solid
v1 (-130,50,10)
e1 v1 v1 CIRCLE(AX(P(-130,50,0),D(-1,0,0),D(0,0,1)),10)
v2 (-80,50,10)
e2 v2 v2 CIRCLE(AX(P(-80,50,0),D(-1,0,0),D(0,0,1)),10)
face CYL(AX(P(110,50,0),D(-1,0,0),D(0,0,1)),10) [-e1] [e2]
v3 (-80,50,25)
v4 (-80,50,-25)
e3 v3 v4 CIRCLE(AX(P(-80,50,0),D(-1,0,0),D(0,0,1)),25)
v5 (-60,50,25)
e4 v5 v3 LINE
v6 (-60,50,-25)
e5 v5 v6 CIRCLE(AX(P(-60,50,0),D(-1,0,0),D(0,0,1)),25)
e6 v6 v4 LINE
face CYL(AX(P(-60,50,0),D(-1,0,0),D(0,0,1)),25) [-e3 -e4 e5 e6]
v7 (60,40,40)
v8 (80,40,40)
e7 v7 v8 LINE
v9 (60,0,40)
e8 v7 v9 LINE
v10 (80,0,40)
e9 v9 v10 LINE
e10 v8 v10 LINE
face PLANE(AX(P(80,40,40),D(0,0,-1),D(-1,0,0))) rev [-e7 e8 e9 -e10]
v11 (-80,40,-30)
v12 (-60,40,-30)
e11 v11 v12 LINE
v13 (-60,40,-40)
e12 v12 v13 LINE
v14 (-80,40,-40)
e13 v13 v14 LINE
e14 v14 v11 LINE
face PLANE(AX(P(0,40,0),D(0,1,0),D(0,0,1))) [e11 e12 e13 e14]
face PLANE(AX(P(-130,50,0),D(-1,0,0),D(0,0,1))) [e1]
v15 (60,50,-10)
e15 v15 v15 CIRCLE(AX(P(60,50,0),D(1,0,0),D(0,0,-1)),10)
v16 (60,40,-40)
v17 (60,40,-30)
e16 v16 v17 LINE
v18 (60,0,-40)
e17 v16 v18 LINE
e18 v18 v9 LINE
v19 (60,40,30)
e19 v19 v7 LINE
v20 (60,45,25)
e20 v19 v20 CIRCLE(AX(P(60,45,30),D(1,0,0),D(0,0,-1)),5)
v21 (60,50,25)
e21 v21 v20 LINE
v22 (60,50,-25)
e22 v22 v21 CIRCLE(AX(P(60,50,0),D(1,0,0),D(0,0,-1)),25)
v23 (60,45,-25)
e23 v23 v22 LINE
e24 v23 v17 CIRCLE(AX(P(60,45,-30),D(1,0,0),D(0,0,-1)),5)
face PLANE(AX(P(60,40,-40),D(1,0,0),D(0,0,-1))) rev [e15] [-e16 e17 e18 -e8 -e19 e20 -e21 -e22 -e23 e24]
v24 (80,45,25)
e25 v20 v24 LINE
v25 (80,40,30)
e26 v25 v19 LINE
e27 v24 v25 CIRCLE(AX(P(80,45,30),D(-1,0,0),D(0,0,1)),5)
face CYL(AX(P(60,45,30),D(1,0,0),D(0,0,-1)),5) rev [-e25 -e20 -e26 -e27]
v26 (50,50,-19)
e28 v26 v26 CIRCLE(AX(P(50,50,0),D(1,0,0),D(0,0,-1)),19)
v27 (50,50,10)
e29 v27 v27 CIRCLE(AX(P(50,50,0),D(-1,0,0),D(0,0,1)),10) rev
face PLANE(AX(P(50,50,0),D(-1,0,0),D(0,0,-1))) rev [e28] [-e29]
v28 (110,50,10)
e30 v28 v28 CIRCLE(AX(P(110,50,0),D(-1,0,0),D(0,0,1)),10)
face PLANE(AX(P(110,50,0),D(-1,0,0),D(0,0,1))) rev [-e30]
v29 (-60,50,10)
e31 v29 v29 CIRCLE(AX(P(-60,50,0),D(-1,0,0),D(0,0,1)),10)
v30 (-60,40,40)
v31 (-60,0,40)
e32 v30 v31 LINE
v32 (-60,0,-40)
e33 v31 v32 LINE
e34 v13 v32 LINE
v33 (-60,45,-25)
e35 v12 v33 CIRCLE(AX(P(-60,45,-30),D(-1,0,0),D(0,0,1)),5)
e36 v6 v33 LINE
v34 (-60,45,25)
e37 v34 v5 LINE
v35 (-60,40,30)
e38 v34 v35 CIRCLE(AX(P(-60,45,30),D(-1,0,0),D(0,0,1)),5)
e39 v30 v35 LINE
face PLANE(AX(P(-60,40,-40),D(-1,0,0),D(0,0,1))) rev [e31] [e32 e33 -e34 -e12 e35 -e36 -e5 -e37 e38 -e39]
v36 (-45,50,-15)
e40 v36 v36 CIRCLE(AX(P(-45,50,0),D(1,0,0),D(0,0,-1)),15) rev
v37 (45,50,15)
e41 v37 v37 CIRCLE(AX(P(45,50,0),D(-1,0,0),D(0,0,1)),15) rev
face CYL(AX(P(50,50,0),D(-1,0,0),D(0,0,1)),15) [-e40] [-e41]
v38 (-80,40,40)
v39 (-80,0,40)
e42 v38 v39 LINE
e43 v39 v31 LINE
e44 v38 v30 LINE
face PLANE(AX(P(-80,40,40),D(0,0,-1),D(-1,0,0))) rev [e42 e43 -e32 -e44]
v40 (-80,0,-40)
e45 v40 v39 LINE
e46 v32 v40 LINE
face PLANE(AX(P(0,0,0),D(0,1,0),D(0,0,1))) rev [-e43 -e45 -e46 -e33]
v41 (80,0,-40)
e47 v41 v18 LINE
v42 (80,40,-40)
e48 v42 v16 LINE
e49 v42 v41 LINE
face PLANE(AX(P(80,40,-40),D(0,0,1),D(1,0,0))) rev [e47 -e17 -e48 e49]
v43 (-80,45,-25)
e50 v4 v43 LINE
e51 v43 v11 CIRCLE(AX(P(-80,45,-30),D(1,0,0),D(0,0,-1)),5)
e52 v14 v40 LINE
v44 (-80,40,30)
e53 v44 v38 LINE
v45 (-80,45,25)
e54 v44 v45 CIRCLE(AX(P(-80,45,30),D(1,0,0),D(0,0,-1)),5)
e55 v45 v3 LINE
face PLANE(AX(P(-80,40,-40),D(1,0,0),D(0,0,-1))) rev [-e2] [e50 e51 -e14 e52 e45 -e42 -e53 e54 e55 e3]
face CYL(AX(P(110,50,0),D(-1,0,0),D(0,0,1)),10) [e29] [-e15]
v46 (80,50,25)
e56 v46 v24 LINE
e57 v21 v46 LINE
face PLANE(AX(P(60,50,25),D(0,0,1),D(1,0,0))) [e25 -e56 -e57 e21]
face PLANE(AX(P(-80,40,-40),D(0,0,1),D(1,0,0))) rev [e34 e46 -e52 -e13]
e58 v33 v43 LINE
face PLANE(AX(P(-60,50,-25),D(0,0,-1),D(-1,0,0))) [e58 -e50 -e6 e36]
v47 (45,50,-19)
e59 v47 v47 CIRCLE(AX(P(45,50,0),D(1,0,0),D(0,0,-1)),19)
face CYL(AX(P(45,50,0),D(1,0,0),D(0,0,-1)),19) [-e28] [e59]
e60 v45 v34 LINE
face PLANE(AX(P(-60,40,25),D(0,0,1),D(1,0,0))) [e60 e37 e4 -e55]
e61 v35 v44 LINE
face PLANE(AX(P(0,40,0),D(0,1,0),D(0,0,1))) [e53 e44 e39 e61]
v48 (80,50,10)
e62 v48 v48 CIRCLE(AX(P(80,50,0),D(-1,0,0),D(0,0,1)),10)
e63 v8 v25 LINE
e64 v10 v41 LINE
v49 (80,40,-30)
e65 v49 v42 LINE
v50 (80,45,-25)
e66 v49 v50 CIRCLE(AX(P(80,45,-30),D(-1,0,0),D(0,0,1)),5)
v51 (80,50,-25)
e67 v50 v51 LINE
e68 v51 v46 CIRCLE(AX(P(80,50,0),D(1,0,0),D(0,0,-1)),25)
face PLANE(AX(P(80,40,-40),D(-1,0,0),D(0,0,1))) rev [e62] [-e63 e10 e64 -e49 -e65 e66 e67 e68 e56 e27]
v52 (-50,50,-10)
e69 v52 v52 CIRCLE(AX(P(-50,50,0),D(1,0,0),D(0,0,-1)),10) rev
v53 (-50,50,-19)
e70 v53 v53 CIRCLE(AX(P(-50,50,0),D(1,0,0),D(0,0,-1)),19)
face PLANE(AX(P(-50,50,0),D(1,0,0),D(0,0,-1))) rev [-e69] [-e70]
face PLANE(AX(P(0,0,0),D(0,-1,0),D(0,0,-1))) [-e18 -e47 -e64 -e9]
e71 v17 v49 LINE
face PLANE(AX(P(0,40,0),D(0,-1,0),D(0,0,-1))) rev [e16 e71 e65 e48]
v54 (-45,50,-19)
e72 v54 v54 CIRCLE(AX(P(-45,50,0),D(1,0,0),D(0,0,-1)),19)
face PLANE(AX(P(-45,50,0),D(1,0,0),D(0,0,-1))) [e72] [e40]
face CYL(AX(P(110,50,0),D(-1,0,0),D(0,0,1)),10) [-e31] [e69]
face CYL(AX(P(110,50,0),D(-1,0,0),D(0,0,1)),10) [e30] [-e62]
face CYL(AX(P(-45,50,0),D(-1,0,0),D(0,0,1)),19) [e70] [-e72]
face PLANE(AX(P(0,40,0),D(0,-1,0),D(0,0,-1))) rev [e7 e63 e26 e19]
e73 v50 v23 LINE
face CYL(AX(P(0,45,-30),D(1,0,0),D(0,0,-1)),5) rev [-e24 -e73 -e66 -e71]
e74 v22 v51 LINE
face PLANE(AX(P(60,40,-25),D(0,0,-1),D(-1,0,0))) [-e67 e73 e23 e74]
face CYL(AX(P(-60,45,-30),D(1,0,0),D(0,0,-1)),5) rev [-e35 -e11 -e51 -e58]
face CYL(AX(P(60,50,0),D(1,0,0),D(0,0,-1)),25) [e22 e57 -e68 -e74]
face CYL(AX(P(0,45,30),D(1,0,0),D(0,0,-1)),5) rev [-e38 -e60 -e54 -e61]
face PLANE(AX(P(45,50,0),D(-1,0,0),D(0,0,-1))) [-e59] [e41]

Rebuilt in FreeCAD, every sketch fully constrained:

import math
import FreeCAD as App
import Part
import Sketcher

V = App.Vector
Q = App.Units.Quantity


def edges_at(feature, points):
    """Names of the edges that pass closest to the given points."""
    edges = feature.Shape.Edges
    near = lambda p: min(range(len(edges)), key=lambda i: edges[i].distToShape(Part.Vertex(*p))[0])
    return sorted({f"Edge{near(p) + 1}" for p in points})

doc = App.newDocument("Part")
body = doc.addObject("PartDesign::Body", "Body")

# Sketch on XZ plane
sketch1 = body.newObject("Sketcher::SketchObject", "Sketch")
sketch1.AttachmentSupport = (doc.getObject("XZ_Plane"), [""])
sketch1.MapMode = "FlatFace"
sketch1.addGeometry([
    Part.LineSegment(V(60, -40, 0), V(60, 40, 0)),
    Part.LineSegment(V(60, 40, 0), V(80, 40, 0)),
    Part.LineSegment(V(80, 40, 0), V(80, -40, 0)),
    Part.LineSegment(V(80, -40, 0), V(60, -40, 0)),
], False)
sketch1.addConstraint([
    Sketcher.Constraint("Coincident", 0, 2, 1, 1),
    Sketcher.Constraint("Coincident", 1, 2, 2, 1),
    Sketcher.Constraint("Coincident", 2, 2, 3, 1),
    Sketcher.Constraint("Coincident", 3, 2, 0, 1),
    Sketcher.Constraint("Vertical", 0),
    Sketcher.Constraint("Horizontal", 1),
    Sketcher.Constraint("Vertical", 2),
    Sketcher.Constraint("Horizontal", 3),
    Sketcher.Constraint("DistanceX", 1, 1, 1, 2, Q("20 mm")),
    Sketcher.Constraint("DistanceY", 0, 1, 0, 2, Q("80 mm")),
    Sketcher.Constraint("DistanceX", -1, 1, 0, 2, Q("60 mm")),
    Sketcher.Constraint("DistanceY", -1, 1, 0, 2, Q("40 mm")),
])
pad1 = body.newObject("PartDesign::Pad", "Pad")
pad1.Profile = sketch1
pad1.Length = 40
pad1.Reversed = True

# Sketch on YZ plane
sketch2 = body.newObject("Sketcher::SketchObject", "Sketch001")
sketch2.AttachmentSupport = (doc.getObject("YZ_Plane"), [""])
sketch2.MapMode = "FlatFace"
sketch2.AttachmentOffset = App.Placement(V(0, 0, 60), App.Rotation())
sketch2.addGeometry([
    Part.LineSegment(V(50, 25, 0), V(40, 25, 0)),
    Part.LineSegment(V(40, 25, 0), V(40, -25, 0)),
    Part.LineSegment(V(40, -25, 0), V(50, -25, 0)),
    Part.ArcOfCircle(Part.Circle(V(50, 0, 0), V(0, 0, 1), 25), math.radians(-90), math.radians(90)),
], False)
sketch2.addConstraint([
    Sketcher.Constraint("Coincident", 0, 2, 1, 1),
    Sketcher.Constraint("Coincident", 1, 2, 2, 1),
    Sketcher.Constraint("Tangent", 2, 2, 3, 1),
    Sketcher.Constraint("Tangent", 3, 2, 0, 1),
    Sketcher.Constraint("Horizontal", 0),
    Sketcher.Constraint("Vertical", 1),
    Sketcher.Constraint("Horizontal", 2),
    Sketcher.Constraint("PointOnObject", 3, 3, -1),
    Sketcher.Constraint("Radius", 3, Q("25 mm")),
    Sketcher.Constraint("DistanceX", 0, 2, 0, 1, Q("10 mm")),
    Sketcher.Constraint("DistanceX", -1, 1, 3, 3, Q("50 mm")),
])
pad2 = body.newObject("PartDesign::Pad", "Pad001")
pad2.Profile = sketch2
pad2.Length = 20
body2 = doc.addObject("PartDesign::Body", "Body001")

# Sketch on XZ plane
sketch3 = body2.newObject("Sketcher::SketchObject", "Sketch002")
sketch3.AttachmentSupport = (doc.getObject("XZ_Plane001"), [""])
sketch3.MapMode = "FlatFace"
sketch3.addGeometry([
    Part.LineSegment(V(-80, -40, 0), V(-80, 40, 0)),
    Part.LineSegment(V(-80, 40, 0), V(-60, 40, 0)),
    Part.LineSegment(V(-60, 40, 0), V(-60, -40, 0)),
    Part.LineSegment(V(-60, -40, 0), V(-80, -40, 0)),
], False)
sketch3.addConstraint([
    Sketcher.Constraint("Coincident", 0, 2, 1, 1),
    Sketcher.Constraint("Coincident", 1, 2, 2, 1),
    Sketcher.Constraint("Coincident", 2, 2, 3, 1),
    Sketcher.Constraint("Coincident", 3, 2, 0, 1),
    Sketcher.Constraint("Vertical", 0),
    Sketcher.Constraint("Horizontal", 1),
    Sketcher.Constraint("Vertical", 2),
    Sketcher.Constraint("Horizontal", 3),
    Sketcher.Constraint("DistanceX", 1, 1, 1, 2, Q("20 mm")),
    Sketcher.Constraint("DistanceY", 0, 1, 0, 2, Q("80 mm")),
    Sketcher.Constraint("DistanceX", 0, 2, -1, 1, Q("80 mm")),
    Sketcher.Constraint("DistanceY", -1, 1, 0, 2, Q("40 mm")),
])
pad3 = body2.newObject("PartDesign::Pad", "Pad002")
pad3.Profile = sketch3
pad3.Length = 40
pad3.Reversed = True

# Sketch on YZ plane
sketch4 = body2.newObject("Sketcher::SketchObject", "Sketch003")
sketch4.AttachmentSupport = (doc.getObject("YZ_Plane001"), [""])
sketch4.MapMode = "FlatFace"
sketch4.AttachmentOffset = App.Placement(V(0, 0, -60), App.Rotation())
sketch4.addGeometry([
    Part.LineSegment(V(50, -25, 0), V(40, -25, 0)),
    Part.LineSegment(V(40, -25, 0), V(40, 25, 0)),
    Part.LineSegment(V(40, 25, 0), V(50, 25, 0)),
    Part.ArcOfCircle(Part.Circle(V(50, 0, 0), V(0, 0, 1), 25), math.radians(-90), math.radians(90)),
], False)
sketch4.addConstraint([
    Sketcher.Constraint("Coincident", 0, 2, 1, 1),
    Sketcher.Constraint("Coincident", 1, 2, 2, 1),
    Sketcher.Constraint("Tangent", 2, 2, 3, 2),
    Sketcher.Constraint("Tangent", 3, 1, 0, 1),
    Sketcher.Constraint("Horizontal", 0),
    Sketcher.Constraint("Vertical", 1),
    Sketcher.Constraint("Horizontal", 2),
    Sketcher.Constraint("PointOnObject", 3, 3, -1),
    Sketcher.Constraint("Radius", 3, Q("25 mm")),
    Sketcher.Constraint("DistanceX", 0, 2, 0, 1, Q("10 mm")),
    Sketcher.Constraint("DistanceX", -1, 1, 3, 3, Q("50 mm")),
])
pad4 = body2.newObject("PartDesign::Pad", "Pad003")
pad4.Profile = sketch4
pad4.Length = 20
pad4.Reversed = True
body3 = doc.addObject("PartDesign::Body", "Body002")

# Sketch on YZ plane
sketch5 = body3.newObject("Sketcher::SketchObject", "Sketch004")
sketch5.AttachmentSupport = (doc.getObject("YZ_Plane002"), [""])
sketch5.MapMode = "FlatFace"
sketch5.AttachmentOffset = App.Placement(V(0, 0, -80), App.Rotation())
sketch5.addGeometry(Part.Circle(V(50, 0, 0), V(0, 0, 1), 10), False)
sketch5.addConstraint([
    Sketcher.Constraint("PointOnObject", 0, 3, -1),
    Sketcher.Constraint("Diameter", 0, Q("20 mm")),
    Sketcher.Constraint("DistanceX", -1, 1, 0, 3, Q("50 mm")),
])
pad5 = body3.newObject("PartDesign::Pad", "Pad004")
pad5.Profile = sketch5
pad5.Length = 170
doc.recompute()

body4 = doc.addObject("PartDesign::Body", "Body003")
body4.BaseFeature = body3
boolean = body.newObject("PartDesign::Boolean", "Boolean")
boolean.Type = "Cut"
boolean.addObjects([body4])
doc.recompute()

fillet = body.newObject("PartDesign::Fillet", "Fillet")
fillet.Base = (boolean, edges_at(boolean, [(70, 40, -25), (70, 40, 25)]))
fillet.Radius = 5
doc.recompute()

boolean2 = body2.newObject("PartDesign::Boolean", "Boolean001")
boolean2.Type = "Cut"
boolean2.addObjects([body3])
doc.recompute()

fillet2 = body2.newObject("PartDesign::Fillet", "Fillet001")
fillet2.Base = (boolean2, edges_at(boolean2, [(-70, 40, 25), (-70, 40, -25)]))
fillet2.Radius = 5
body.AllowCompound = True
doc.recompute()

boolean3 = body.newObject("PartDesign::Boolean", "Boolean002")
boolean3.Type = "Fuse"
boolean3.addObjects([body2])

# Sketch on YZ plane
sketch6 = body.newObject("Sketcher::SketchObject", "Sketch005")
sketch6.AttachmentSupport = (doc.getObject("YZ_Plane"), [""])
sketch6.MapMode = "FlatFace"
sketch6.AttachmentOffset = App.Placement(V(0, 0, -80), App.Rotation())
sketch6.addGeometry(Part.Circle(V(50, 0, 0), V(0, 0, 1), 10), False)
sketch6.addConstraint([
    Sketcher.Constraint("PointOnObject", 0, 3, -1),
    Sketcher.Constraint("Diameter", 0, Q("20 mm")),
    Sketcher.Constraint("DistanceX", -1, 1, 0, 3, Q("50 mm")),
])
pad6 = body.newObject("PartDesign::Pad", "Pad005")
pad6.Profile = sketch6
pad6.Type = "TwoLengths"
pad6.Length = 50
pad6.Length2 = 190
pad6.Reversed = True

# Sketch on YZ plane
sketch7 = body.newObject("Sketcher::SketchObject", "Sketch006")
sketch7.AttachmentSupport = (doc.getObject("YZ_Plane"), [""])
sketch7.MapMode = "FlatFace"
sketch7.AttachmentOffset = App.Placement(V(0, 0, -50), App.Rotation())
sketch7.addGeometry(Part.Circle(V(50, 0, 0), V(0, 0, 1), 19), False)
sketch7.addConstraint([
    Sketcher.Constraint("PointOnObject", 0, 3, -1),
    Sketcher.Constraint("Diameter", 0, Q("38 mm")),
    Sketcher.Constraint("DistanceX", -1, 1, 0, 3, Q("50 mm")),
])
pad7 = body.newObject("PartDesign::Pad", "Pad006")
pad7.Profile = sketch7
pad7.Length = 5
doc.recompute()

mirrored = body.newObject("PartDesign::Mirrored", "Mirrored")
mirrored.Originals = [pad7]
mirrored.MirrorPlane = (doc.getObject("YZ_Plane"), [""])
body.Tip = mirrored

# Sketch on YZ plane
sketch8 = body.newObject("Sketcher::SketchObject", "Sketch007")
sketch8.AttachmentSupport = (doc.getObject("YZ_Plane"), [""])
sketch8.MapMode = "FlatFace"
sketch8.AttachmentOffset = App.Placement(V(0, 0, -50), App.Rotation())
sketch8.addGeometry(Part.Circle(V(50, 0, 0), V(0, 0, 1), 15), False)
sketch8.addConstraint([
    Sketcher.Constraint("PointOnObject", 0, 3, -1),
    Sketcher.Constraint("Diameter", 0, Q("30 mm")),
    Sketcher.Constraint("DistanceX", -1, 1, 0, 3, Q("50 mm")),
])
pad8 = body.newObject("PartDesign::Pad", "Pad007")
pad8.Profile = sketch8
pad8.Length = 100

doc.recompute()
